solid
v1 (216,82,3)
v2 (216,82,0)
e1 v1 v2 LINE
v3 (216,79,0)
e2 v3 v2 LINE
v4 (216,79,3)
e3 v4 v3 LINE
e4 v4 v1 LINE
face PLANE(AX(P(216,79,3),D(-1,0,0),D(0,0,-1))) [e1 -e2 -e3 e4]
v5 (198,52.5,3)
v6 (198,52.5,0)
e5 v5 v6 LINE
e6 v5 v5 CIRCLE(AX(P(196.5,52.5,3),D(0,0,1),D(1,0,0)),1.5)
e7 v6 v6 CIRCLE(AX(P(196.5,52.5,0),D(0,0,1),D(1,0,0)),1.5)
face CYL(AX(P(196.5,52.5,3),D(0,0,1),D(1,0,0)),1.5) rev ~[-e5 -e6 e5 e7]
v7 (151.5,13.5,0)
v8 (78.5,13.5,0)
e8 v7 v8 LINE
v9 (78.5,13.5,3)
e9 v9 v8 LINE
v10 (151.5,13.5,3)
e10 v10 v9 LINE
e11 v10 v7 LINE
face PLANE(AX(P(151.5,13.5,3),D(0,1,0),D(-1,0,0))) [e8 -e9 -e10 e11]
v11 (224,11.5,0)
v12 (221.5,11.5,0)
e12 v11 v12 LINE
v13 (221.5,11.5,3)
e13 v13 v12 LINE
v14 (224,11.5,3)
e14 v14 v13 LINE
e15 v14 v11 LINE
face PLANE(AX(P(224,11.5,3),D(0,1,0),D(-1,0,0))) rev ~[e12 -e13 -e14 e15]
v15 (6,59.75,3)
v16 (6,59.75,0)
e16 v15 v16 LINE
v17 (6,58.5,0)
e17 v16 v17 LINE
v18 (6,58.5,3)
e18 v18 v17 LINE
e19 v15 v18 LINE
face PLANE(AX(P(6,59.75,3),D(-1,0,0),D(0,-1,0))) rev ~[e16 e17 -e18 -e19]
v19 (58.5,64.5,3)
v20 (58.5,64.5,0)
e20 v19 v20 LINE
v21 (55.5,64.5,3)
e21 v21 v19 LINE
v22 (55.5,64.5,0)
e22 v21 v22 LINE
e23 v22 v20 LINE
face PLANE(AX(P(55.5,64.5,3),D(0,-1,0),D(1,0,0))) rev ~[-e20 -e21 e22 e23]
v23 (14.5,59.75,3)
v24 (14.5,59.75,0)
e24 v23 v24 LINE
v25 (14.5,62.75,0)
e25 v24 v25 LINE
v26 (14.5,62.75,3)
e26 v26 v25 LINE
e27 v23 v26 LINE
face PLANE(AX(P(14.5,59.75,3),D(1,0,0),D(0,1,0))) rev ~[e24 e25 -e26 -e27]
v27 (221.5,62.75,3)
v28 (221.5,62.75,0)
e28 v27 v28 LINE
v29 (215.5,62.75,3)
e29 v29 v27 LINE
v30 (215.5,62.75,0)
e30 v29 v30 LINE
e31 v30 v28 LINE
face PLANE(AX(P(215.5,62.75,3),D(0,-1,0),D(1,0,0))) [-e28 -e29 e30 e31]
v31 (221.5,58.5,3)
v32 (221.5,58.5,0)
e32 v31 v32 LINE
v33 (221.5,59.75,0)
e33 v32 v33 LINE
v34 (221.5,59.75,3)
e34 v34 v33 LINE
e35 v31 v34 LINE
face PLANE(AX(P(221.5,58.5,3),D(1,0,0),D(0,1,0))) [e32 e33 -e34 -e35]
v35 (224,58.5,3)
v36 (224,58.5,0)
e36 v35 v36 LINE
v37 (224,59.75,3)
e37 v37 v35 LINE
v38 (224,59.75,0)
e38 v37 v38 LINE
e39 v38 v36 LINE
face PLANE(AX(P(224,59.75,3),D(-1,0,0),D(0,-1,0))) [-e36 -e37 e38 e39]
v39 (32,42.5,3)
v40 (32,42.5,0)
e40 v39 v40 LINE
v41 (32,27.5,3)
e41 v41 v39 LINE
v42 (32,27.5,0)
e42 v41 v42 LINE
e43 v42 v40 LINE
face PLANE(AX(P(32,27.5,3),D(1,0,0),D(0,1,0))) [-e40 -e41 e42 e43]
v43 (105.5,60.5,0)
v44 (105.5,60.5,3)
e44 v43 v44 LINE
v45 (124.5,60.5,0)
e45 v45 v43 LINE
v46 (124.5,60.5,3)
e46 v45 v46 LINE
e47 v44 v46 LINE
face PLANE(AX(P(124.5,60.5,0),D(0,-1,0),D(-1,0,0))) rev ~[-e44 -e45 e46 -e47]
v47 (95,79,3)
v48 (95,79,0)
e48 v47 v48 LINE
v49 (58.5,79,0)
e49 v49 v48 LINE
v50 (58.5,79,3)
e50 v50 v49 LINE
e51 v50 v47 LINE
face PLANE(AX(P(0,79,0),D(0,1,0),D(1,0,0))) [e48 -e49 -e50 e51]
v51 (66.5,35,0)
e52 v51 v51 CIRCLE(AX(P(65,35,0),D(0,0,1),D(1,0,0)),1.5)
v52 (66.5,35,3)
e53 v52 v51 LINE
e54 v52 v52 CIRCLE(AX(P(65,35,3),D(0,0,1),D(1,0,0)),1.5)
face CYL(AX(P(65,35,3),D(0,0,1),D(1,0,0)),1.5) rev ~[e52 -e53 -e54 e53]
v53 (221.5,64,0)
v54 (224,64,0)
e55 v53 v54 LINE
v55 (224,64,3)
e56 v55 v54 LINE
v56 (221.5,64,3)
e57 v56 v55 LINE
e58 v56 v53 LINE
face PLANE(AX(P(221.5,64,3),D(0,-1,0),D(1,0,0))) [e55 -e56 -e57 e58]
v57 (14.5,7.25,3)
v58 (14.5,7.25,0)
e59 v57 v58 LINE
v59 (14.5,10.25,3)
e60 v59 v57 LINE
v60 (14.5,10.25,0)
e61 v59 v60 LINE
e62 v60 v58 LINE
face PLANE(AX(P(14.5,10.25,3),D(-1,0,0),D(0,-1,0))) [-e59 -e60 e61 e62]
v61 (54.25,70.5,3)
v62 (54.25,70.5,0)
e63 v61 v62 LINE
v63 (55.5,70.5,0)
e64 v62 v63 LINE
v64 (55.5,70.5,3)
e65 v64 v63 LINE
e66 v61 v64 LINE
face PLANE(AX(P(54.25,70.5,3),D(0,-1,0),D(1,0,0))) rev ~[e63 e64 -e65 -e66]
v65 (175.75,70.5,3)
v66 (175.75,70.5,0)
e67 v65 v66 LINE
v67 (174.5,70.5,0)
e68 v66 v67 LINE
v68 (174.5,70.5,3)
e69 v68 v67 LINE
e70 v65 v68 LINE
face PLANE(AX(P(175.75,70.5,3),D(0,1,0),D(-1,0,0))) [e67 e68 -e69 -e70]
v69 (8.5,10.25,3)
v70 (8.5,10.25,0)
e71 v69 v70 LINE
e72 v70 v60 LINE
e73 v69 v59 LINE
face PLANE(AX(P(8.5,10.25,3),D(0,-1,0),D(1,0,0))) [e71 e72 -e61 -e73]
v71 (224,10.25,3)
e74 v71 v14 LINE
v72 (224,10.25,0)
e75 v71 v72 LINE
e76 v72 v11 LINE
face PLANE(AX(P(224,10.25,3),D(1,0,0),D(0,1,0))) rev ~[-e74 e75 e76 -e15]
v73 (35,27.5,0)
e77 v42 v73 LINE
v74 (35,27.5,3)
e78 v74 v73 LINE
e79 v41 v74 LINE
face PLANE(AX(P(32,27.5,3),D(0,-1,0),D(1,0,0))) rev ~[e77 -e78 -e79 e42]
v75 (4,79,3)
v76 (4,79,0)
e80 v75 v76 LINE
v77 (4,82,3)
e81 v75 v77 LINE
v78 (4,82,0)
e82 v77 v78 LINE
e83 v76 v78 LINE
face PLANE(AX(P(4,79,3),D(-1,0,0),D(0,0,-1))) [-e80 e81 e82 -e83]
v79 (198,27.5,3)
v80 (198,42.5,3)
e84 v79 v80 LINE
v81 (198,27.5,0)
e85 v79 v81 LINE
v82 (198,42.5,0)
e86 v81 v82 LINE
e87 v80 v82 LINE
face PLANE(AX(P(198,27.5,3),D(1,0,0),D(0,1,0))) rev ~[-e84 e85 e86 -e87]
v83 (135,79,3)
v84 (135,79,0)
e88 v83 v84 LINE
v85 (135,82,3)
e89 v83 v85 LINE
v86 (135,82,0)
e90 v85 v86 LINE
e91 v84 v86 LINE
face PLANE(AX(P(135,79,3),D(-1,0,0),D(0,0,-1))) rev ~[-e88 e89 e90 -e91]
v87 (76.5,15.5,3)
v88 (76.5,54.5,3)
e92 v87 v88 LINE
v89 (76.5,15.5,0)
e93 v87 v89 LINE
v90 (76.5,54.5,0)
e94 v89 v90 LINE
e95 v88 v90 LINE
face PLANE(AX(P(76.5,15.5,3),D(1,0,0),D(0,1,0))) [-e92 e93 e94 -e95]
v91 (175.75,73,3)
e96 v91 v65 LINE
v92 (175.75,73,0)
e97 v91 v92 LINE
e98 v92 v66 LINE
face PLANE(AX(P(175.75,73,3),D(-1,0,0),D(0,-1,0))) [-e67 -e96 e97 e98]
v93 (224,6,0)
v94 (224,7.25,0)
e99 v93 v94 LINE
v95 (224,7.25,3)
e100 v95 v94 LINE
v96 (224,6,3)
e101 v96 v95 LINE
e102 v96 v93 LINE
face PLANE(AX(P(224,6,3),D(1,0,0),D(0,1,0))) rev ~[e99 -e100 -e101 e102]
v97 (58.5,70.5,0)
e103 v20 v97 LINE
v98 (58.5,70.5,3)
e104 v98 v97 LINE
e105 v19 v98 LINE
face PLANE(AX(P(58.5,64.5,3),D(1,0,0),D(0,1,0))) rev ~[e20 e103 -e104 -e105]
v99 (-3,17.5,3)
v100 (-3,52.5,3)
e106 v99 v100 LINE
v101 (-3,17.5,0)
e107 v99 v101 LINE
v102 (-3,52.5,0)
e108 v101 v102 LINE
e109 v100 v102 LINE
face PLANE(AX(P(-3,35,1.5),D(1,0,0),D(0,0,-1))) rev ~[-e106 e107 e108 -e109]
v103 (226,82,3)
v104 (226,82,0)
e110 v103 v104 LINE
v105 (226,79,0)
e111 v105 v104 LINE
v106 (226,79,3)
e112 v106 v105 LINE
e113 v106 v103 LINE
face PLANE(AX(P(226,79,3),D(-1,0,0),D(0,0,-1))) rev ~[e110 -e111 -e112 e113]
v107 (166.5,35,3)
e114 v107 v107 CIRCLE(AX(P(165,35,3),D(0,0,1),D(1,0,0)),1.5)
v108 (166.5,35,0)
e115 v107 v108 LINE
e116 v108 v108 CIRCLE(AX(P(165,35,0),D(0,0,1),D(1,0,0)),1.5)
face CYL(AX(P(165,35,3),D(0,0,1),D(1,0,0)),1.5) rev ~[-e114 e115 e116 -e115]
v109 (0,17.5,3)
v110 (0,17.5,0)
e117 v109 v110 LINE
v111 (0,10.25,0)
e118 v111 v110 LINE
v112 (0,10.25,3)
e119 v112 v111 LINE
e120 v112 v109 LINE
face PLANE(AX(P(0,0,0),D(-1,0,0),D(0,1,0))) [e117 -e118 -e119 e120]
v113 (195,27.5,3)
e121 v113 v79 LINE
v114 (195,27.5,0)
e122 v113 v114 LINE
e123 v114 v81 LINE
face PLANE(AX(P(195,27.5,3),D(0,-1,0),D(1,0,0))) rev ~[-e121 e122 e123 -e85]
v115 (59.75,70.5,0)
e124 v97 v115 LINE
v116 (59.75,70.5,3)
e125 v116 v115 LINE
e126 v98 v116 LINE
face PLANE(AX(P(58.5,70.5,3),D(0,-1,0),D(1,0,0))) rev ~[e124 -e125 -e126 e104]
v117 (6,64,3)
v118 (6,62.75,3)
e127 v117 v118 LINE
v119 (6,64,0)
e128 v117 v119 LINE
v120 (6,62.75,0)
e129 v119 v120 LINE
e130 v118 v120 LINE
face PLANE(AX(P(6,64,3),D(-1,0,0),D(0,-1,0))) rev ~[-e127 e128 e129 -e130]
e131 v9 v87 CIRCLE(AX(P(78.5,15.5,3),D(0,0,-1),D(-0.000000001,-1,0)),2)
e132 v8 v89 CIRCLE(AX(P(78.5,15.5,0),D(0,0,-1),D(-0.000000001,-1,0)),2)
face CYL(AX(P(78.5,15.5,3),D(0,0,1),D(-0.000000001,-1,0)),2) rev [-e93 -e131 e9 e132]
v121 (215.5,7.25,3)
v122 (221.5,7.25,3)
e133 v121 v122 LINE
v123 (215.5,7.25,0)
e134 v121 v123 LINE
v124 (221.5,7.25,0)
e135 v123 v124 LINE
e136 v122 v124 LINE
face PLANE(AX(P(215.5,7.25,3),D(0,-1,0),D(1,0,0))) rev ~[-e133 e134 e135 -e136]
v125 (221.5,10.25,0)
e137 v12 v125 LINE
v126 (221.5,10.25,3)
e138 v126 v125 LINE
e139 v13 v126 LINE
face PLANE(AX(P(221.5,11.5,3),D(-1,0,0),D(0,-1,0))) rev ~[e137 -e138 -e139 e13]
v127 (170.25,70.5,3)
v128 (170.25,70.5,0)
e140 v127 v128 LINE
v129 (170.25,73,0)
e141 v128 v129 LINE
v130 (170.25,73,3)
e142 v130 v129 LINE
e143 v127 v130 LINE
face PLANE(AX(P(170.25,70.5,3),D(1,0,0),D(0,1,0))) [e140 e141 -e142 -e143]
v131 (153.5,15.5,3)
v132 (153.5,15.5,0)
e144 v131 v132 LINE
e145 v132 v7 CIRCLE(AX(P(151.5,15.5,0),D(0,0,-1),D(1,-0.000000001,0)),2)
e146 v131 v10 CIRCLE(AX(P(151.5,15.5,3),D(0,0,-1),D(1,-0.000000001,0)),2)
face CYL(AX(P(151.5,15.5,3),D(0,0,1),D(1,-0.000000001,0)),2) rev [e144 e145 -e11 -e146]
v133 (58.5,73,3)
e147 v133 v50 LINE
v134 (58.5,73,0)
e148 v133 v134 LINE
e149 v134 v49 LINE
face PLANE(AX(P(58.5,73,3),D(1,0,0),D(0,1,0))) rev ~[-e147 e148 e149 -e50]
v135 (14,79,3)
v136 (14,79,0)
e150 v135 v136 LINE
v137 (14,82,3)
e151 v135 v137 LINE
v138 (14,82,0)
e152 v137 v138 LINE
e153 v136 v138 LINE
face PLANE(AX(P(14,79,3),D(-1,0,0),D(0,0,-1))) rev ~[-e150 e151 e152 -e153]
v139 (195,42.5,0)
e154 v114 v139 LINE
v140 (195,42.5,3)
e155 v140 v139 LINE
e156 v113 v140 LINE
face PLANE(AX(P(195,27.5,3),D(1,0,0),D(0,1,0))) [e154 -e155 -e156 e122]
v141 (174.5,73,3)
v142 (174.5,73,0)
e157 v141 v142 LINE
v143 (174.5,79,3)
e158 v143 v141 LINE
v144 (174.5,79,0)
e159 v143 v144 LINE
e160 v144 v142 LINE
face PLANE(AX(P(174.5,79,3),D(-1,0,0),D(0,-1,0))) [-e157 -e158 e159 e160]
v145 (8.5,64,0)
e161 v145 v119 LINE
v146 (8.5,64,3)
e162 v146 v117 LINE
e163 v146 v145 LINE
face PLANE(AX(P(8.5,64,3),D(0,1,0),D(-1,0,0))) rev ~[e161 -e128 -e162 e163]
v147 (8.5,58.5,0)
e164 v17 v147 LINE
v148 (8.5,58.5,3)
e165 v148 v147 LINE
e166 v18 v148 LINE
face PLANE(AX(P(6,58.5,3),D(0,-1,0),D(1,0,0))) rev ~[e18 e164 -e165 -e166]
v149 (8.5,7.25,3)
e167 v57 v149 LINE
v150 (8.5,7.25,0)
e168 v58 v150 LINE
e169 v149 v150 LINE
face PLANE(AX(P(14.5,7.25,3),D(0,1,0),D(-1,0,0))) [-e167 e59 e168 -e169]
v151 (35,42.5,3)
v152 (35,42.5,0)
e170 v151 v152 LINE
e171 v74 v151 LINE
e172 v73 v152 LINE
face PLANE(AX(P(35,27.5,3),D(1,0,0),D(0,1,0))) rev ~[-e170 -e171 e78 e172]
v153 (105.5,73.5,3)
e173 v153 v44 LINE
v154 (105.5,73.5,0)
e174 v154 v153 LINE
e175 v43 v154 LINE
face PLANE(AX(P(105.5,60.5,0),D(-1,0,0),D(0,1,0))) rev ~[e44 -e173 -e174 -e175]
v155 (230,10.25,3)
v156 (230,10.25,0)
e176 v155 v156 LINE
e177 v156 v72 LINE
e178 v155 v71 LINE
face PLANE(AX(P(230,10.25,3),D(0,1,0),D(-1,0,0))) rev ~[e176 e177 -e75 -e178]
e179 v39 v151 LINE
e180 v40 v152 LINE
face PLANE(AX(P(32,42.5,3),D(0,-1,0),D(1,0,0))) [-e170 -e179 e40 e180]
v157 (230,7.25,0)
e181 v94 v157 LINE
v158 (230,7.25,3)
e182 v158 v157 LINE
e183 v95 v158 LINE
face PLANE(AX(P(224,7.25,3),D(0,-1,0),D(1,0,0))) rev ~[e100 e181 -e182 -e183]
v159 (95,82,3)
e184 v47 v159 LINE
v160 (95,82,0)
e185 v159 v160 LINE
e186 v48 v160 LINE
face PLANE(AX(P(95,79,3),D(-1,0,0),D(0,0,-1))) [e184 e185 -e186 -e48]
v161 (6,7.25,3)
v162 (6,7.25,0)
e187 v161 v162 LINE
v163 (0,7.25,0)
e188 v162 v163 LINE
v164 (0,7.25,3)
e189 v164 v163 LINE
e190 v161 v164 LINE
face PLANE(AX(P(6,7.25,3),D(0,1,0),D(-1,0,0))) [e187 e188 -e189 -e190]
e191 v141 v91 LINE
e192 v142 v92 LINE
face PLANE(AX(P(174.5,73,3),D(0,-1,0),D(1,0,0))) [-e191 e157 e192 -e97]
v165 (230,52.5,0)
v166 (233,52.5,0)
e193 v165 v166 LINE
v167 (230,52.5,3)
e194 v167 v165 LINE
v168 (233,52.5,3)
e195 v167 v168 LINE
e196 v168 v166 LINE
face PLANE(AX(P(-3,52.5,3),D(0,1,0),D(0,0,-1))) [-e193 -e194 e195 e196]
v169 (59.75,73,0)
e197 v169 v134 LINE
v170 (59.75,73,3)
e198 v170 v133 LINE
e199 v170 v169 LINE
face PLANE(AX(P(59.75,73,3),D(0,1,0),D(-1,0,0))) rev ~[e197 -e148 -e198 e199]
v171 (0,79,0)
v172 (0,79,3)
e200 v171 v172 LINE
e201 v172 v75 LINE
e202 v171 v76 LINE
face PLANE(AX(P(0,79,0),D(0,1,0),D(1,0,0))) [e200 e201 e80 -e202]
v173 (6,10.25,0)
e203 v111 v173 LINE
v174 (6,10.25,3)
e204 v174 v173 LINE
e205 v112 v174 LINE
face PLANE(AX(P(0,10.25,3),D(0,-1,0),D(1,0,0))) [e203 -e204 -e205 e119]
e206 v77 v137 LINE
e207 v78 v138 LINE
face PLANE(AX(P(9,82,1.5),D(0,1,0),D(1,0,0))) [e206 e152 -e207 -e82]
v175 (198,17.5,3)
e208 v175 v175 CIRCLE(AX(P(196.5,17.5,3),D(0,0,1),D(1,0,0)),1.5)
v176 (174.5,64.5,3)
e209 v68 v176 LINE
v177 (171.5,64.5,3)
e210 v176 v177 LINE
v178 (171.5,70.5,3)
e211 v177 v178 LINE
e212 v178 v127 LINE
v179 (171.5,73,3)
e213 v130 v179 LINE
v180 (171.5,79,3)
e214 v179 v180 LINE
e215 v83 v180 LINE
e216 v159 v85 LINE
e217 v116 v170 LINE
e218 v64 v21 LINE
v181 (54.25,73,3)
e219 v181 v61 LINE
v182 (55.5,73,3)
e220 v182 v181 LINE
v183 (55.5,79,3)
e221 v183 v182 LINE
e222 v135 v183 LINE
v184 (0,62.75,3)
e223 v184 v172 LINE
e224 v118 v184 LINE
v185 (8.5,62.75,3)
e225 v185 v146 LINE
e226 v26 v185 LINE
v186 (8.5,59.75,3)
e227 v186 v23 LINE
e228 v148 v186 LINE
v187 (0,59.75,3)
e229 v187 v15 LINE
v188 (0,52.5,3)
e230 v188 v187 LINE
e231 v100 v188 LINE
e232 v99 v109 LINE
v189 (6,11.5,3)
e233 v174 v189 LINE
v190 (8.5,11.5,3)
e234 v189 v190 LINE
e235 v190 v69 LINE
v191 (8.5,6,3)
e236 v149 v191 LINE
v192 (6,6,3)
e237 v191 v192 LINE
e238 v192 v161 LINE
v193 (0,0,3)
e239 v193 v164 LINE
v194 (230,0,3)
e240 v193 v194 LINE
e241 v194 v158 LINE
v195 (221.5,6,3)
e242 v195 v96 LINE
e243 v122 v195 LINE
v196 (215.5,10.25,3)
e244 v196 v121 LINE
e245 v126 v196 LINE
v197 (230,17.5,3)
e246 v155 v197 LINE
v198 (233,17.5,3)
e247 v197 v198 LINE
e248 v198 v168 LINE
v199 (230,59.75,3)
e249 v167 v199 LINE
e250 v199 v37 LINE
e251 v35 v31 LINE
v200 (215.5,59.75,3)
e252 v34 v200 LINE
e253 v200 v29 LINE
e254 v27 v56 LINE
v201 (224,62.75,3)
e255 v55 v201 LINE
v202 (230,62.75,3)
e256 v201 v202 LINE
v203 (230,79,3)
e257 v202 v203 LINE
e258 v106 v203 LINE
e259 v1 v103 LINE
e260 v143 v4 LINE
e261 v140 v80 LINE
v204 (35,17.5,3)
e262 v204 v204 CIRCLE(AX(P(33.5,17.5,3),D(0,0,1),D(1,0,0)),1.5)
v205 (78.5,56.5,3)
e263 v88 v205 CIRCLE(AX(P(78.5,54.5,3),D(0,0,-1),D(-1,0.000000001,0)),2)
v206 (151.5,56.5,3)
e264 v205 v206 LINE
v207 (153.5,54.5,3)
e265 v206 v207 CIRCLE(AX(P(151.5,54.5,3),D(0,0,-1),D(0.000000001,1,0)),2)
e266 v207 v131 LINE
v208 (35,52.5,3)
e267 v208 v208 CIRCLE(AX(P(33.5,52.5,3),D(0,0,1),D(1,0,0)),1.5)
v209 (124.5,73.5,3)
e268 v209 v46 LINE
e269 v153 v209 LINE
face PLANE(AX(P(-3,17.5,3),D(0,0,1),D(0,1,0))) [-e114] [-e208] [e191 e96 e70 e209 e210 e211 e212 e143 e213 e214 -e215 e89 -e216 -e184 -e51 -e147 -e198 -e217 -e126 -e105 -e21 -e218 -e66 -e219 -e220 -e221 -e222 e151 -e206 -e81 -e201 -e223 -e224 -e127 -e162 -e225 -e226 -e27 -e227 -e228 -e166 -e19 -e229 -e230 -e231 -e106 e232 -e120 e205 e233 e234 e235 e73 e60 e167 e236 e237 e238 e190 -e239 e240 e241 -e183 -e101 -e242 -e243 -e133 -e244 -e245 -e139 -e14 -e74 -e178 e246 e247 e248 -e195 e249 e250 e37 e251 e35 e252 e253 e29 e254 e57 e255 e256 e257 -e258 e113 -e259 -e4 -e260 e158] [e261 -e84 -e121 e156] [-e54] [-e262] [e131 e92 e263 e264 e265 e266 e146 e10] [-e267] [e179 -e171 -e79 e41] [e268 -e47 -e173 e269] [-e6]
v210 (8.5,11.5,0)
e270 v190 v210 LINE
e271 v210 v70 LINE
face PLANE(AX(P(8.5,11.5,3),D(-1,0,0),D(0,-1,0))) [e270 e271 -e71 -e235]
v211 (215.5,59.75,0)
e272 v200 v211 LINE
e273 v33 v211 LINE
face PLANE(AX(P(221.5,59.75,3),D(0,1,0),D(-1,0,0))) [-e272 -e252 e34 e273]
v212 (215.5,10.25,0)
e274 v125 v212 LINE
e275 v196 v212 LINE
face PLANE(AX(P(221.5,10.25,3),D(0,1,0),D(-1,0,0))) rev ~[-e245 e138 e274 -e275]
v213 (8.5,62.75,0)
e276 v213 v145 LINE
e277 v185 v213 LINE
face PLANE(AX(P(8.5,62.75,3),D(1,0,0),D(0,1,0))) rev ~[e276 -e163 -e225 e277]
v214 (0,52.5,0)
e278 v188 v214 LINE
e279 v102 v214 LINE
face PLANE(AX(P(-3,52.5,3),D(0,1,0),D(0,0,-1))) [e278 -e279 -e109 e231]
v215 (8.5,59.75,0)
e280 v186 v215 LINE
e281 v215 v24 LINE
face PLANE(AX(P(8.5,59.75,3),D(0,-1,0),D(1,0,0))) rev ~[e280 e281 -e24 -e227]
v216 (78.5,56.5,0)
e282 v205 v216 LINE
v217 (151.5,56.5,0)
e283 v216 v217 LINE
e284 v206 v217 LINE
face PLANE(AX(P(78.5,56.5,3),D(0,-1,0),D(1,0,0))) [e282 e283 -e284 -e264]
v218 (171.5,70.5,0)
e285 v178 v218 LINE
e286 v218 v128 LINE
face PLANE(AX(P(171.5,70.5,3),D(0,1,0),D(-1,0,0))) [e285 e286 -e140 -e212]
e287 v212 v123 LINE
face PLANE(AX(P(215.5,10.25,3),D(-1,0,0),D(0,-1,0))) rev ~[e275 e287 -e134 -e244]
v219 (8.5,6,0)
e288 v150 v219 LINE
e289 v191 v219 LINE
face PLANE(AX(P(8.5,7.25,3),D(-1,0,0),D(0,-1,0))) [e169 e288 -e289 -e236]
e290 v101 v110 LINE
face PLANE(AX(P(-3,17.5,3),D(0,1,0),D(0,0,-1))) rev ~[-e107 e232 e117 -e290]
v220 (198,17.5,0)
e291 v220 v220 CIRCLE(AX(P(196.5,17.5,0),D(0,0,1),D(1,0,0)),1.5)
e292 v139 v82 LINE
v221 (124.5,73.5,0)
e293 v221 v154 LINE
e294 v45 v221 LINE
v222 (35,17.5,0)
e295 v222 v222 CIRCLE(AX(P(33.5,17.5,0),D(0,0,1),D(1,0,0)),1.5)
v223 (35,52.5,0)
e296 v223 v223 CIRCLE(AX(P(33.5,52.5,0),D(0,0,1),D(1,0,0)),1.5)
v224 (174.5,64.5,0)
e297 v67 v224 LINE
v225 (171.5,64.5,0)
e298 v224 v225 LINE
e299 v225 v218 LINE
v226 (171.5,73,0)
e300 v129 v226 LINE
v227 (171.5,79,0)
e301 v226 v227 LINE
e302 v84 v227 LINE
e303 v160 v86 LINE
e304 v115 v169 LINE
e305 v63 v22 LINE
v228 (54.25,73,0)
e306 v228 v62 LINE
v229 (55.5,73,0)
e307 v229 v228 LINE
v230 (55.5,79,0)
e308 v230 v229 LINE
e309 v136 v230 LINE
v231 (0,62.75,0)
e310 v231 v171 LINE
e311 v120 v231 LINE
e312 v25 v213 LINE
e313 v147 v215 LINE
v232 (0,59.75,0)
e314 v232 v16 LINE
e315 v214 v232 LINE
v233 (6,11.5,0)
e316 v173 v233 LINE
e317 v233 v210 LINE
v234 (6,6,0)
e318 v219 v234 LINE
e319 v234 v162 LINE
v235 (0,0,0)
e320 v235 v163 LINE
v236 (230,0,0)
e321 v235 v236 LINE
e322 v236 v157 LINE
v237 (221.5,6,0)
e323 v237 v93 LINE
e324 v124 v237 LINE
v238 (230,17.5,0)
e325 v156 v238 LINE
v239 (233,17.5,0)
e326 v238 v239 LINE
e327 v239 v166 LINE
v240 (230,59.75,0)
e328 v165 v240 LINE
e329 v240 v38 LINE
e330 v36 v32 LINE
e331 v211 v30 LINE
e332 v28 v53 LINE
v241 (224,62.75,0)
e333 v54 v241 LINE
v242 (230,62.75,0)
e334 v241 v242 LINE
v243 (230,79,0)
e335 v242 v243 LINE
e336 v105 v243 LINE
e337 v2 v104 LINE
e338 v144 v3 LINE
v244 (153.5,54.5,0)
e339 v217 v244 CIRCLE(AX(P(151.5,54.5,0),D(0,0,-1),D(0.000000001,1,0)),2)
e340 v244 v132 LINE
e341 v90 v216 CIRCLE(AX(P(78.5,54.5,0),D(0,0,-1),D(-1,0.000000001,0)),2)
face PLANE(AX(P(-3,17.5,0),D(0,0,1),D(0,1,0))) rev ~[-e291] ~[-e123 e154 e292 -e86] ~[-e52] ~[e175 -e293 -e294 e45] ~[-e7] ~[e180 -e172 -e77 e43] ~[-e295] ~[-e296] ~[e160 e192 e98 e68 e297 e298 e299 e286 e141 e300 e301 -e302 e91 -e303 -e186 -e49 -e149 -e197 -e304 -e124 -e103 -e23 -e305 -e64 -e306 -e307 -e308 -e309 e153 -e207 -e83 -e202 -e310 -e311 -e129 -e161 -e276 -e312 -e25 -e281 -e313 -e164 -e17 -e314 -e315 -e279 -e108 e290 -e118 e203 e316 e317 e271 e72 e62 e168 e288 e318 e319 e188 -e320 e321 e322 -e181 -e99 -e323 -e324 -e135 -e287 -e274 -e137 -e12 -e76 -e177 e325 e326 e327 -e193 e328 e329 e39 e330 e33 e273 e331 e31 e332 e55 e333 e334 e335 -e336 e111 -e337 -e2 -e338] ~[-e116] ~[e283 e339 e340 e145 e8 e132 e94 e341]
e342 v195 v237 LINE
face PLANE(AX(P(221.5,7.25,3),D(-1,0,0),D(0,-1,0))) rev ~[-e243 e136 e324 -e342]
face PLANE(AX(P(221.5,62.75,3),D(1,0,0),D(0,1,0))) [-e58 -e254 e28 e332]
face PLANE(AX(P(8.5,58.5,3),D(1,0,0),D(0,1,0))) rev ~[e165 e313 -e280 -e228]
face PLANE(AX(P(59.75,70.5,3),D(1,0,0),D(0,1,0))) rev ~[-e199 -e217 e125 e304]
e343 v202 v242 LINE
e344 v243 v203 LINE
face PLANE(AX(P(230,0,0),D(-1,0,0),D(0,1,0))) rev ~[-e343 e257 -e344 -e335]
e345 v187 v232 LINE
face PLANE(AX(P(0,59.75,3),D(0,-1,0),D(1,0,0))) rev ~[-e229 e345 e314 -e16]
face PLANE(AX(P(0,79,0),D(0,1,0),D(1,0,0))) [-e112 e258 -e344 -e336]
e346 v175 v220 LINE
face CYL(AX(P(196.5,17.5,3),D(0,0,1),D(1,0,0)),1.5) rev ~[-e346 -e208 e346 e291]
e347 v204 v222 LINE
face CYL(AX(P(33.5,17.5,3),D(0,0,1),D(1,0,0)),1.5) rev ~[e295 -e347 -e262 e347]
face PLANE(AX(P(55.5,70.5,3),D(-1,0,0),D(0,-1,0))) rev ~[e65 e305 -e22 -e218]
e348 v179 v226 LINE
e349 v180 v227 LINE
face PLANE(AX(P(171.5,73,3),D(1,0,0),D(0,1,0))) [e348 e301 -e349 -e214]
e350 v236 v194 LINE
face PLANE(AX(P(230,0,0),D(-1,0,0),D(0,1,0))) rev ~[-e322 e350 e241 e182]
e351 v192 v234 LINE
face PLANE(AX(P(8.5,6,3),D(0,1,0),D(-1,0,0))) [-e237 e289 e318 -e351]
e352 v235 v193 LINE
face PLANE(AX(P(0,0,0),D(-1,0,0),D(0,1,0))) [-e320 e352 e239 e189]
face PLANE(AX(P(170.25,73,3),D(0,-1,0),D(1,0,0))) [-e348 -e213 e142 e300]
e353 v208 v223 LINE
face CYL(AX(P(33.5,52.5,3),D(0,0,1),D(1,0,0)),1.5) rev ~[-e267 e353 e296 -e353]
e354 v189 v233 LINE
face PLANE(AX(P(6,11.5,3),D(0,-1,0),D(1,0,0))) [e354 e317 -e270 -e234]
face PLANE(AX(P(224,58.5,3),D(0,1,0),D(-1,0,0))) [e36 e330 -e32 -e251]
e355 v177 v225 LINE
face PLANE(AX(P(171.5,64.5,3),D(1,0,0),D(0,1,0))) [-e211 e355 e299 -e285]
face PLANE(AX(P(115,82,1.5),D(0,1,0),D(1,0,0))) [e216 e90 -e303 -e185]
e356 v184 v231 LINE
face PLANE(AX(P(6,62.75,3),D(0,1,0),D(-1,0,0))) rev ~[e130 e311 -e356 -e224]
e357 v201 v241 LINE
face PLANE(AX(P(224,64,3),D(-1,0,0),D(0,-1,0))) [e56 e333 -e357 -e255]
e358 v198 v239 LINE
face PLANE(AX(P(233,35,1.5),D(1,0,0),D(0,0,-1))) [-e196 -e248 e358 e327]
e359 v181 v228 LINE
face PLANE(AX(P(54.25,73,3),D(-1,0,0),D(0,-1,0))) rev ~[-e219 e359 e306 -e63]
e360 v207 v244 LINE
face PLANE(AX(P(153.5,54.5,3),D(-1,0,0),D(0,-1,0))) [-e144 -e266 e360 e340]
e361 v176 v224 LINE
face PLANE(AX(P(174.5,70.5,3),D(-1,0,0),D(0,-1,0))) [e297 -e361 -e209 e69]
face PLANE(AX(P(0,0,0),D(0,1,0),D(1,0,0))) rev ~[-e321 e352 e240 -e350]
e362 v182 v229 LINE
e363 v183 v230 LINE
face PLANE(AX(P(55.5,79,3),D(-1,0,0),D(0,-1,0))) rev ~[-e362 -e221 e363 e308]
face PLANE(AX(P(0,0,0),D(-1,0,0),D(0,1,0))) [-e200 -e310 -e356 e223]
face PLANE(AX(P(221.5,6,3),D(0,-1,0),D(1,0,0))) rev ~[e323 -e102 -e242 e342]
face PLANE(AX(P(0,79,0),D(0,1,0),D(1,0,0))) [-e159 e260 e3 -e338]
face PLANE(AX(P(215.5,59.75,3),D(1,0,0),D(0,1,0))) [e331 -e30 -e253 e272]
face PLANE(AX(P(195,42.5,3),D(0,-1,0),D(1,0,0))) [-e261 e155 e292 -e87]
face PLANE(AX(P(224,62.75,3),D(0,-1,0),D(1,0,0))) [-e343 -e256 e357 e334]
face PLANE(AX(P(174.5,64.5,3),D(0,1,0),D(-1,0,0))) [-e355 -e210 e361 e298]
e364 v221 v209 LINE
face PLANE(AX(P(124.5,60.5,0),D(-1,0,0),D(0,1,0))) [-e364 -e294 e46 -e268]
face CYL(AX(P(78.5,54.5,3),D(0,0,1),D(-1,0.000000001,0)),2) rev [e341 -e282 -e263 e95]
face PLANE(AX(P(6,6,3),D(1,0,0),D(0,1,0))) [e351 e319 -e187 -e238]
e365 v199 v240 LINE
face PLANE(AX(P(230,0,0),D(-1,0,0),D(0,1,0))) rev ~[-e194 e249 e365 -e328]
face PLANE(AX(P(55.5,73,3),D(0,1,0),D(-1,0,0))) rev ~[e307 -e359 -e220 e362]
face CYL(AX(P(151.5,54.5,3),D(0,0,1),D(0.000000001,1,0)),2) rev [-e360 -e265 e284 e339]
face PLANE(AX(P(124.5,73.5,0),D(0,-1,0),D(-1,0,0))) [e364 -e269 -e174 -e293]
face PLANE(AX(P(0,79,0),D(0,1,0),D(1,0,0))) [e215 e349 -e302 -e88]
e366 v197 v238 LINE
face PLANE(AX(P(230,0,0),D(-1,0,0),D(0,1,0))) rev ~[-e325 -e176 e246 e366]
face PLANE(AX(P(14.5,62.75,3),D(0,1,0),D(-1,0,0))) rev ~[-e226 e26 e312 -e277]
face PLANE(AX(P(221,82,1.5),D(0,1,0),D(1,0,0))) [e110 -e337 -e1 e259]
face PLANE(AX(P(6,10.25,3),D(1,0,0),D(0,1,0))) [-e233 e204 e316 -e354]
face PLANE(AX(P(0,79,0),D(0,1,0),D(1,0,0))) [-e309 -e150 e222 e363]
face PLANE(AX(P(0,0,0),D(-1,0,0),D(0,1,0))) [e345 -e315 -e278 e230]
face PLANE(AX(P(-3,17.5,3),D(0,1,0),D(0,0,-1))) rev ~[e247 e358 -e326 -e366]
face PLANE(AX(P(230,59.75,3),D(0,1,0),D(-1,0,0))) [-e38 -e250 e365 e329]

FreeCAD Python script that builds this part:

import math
import FreeCAD as App
import Part
import Sketcher
from FreeCAD import Vector


def add_polygon(sketch, points):
    """Adds a closed chain of lines whose ends are joined by coincident constraints."""
    first, n = sketch.GeometryCount, len(points)
    for a, b in zip(points, points[1:] + points[:1]):
        sketch.addGeometry(Part.LineSegment(App.Vector(*a, 0), App.Vector(*b, 0)), False)
    for i in range(n):
        sketch.addConstraint(Sketcher.Constraint("Coincident", first + i, 2, first + (i + 1) % n, 1))

doc = App.newDocument("Part")
params = doc.addObject("Spreadsheet::Sheet", "Params")
for row, (alias, value) in enumerate([
    ("sketch1_width", "230 mm"),
    ("sketch1_height", "79 mm"),
    ("pad1_length", "3 mm"),
    ("sketch2_width", "35 mm"),
    ("sketch2_height", "3 mm"),
    ("pad2_length", "3 mm"),
    ("pad2_length2", "233 mm"),
    ("sketch3_diameter", "3 mm"),
    ("pocket1_length", "3 mm"),
    ("sketch4_diameter", "3 mm"),
    ("pocket2_length", "3 mm"),
    ("sketch5_width", "3 mm"),
    ("sketch5_height", "15 mm"),
    ("pocket3_length", "3 mm"),
    ("sketch6_width", "6 mm"),
    ("sketch6_height", "3 mm"),
    ("sketch6_width2", "2.5 mm"),
    ("pocket4_length", "3 mm"),
    ("sketch7_width", "10 mm"),
    ("sketch7_height", "3 mm"),
    ("pad3_length", "3 mm"),
    ("sketch8_width", "40 mm"),
    ("sketch8_height", "3 mm"),
    ("pad4_length", "3 mm"),
    ("sketch9_width", "3 mm"),
    ("sketch9_height", "6 mm"),
    ("sketch9_height2", "2.5 mm"),
    ("sketch9_width2", "1.25 mm"),
    ("pocket5_length", "3 mm"),
    ("sketch10_radius", "2 mm"),
    ("sketch10_width", "73 mm"),
    ("sketch10_height", "39 mm"),
    ("pocket6_length", "3 mm"),
    ("sketch11_width", "19 mm"),
    ("sketch11_height", "13 mm"),
    ("pocket7_length", "10 mm"),
], start=1):
    params.set(f"A{row}", alias)
    params.set(f"B{row}", "=" + value)
    params.setAlias(f"B{row}", alias)

body = doc.addObject("PartDesign::Body", "Body")

# Sketch on XY plane
sketch1 = body.newObject("Sketcher::SketchObject", "Sketch")
sketch1.AttachmentSupport = (doc.getObject("XY_Plane"), [""])
sketch1.MapMode = "FlatFace"
add_polygon(sketch1, [(0, 79), (0, 0), (230, 0), (230, 79)])  # lines 0-3
sketch1.addConstraint([
    Sketcher.Constraint("Vertical", 0),
    Sketcher.Constraint("Horizontal", 1),
    Sketcher.Constraint("Vertical", 2),
    Sketcher.Constraint("Horizontal", 3),
    Sketcher.Constraint("Coincident", 0, 2, -1, 1),
    Sketcher.Constraint("DistanceX", 1, 1, 1, 2, 230.0),
    Sketcher.Constraint("DistanceY", 0, 2, 0, 1, 79.0),
])
sketch1.setExpression("Constraints[9]", "Params.sketch1_width")
sketch1.setExpression("Constraints[10]", "Params.sketch1_height")
pad1 = body.newObject("PartDesign::Pad", "Pad")
pad1.Profile = sketch1
pad1.setExpression("Length", "Params.pad1_length")

# Sketch on YZ plane
sketch2 = body.newObject("Sketcher::SketchObject", "Sketch001")
sketch2.AttachmentSupport = (doc.getObject("YZ_Plane"), [""])
sketch2.MapMode = "FlatFace"
sketch2.AttachmentOffset = App.Placement(Vector(0, 0, 230), App.Rotation())
add_polygon(sketch2, [(52.5, 3), (17.5, 3), (17.5, 0), (52.5, 0)])  # lines 0-3
sketch2.addConstraint([
    Sketcher.Constraint("Horizontal", 0),
    Sketcher.Constraint("Vertical", 1),
    Sketcher.Constraint("Horizontal", 2),
    Sketcher.Constraint("Vertical", 3),
    Sketcher.Constraint("PointOnObject", 1, 2, -1),
    Sketcher.Constraint("DistanceX", 0, 2, 0, 1, 35.0),
    Sketcher.Constraint("DistanceY", 1, 2, 1, 1, 3.0),
    Sketcher.Constraint("DistanceX", -1, 1, 0, 2, 17.5),
])
sketch2.setExpression("Constraints[9]", "Params.sketch2_width")
sketch2.setExpression("Constraints[10]", "Params.sketch2_height")
pad2 = body.newObject("PartDesign::Pad", "Pad001")
pad2.Profile = sketch2
pad2.Type = "TwoLengths"
pad2.setExpression("Length", "Params.pad2_length")
pad2.setExpression("Length2", "Params.pad2_length2")

# Sketch on XY plane
sketch3 = body.newObject("Sketcher::SketchObject", "Sketch002")
sketch3.AttachmentSupport = (doc.getObject("XY_Plane"), [""])
sketch3.MapMode = "FlatFace"
sketch3.AttachmentOffset = App.Placement(Vector(0, 0, 3), App.Rotation())
sketch3.addGeometry([
    Part.Circle(Vector(65, 35, 0), Vector(0, 0, 1), 1.5),
    Part.Circle(Vector(165, 35, 0), Vector(0, 0, 1), 1.5),
], False)
sketch3.addConstraint([
    Sketcher.Constraint("Equal", 0, 1),
    Sketcher.Constraint("Horizontal", 0, 3, 1, 3),
    Sketcher.Constraint("Diameter", 0, 3.0),
    Sketcher.Constraint("DistanceX", -1, 1, 0, 3, 65.0),
    Sketcher.Constraint("DistanceY", -1, 1, 0, 3, 35.0),
    Sketcher.Constraint("DistanceX", -1, 1, 1, 3, 165.0),
])
sketch3.setExpression("Constraints[2]", "Params.sketch3_diameter")
pocket1 = body.newObject("PartDesign::Pocket", "Pocket")
pocket1.Profile = sketch3
pocket1.setExpression("Length", "Params.pocket1_length")

# Sketch on XY plane
sketch4 = body.newObject("Sketcher::SketchObject", "Sketch003")
sketch4.AttachmentSupport = (doc.getObject("XY_Plane"), [""])
sketch4.MapMode = "FlatFace"
sketch4.AttachmentOffset = App.Placement(Vector(0, 0, 3), App.Rotation())
sketch4.addGeometry([
    Part.Circle(Vector(33.5, 52.5, 0), Vector(0, 0, 1), 1.5),
    Part.Circle(Vector(196.5, 52.5, 0), Vector(0, 0, 1), 1.5),
    Part.Circle(Vector(196.5, 17.5, 0), Vector(0, 0, 1), 1.5),
    Part.Circle(Vector(33.5, 17.5, 0), Vector(0, 0, 1), 1.5),
], False)
sketch4.addConstraint([
    Sketcher.Constraint("Equal", 0, 1),
    Sketcher.Constraint("Equal", 1, 2),
    Sketcher.Constraint("Equal", 2, 3),
    Sketcher.Constraint("Horizontal", 0, 3, 1, 3),
    Sketcher.Constraint("Horizontal", 2, 3, 3, 3),
    Sketcher.Constraint("Vertical", 1, 3, 2, 3),
    Sketcher.Constraint("Vertical", 0, 3, 3, 3),
    Sketcher.Constraint("Diameter", 0, 3.0),
    Sketcher.Constraint("DistanceX", 0, 3, 1, 3, 163.0),
    Sketcher.Constraint("DistanceY", 2, 3, 1, 3, 35.0),
    Sketcher.Constraint("DistanceX", -1, 1, 0, 3, 33.5),
    Sketcher.Constraint("DistanceY", -1, 1, 0, 3, 52.5),
])
sketch4.setExpression("Constraints[7]", "Params.sketch4_diameter")
pocket2 = body.newObject("PartDesign::Pocket", "Pocket001")
pocket2.Profile = sketch4
pocket2.setExpression("Length", "Params.pocket2_length")

# Sketch on XY plane
sketch5 = body.newObject("Sketcher::SketchObject", "Sketch004")
sketch5.AttachmentSupport = (doc.getObject("XY_Plane"), [""])
sketch5.MapMode = "FlatFace"
sketch5.AttachmentOffset = App.Placement(Vector(0, 0, 3), App.Rotation())
add_polygon(sketch5, [(32, 42.5), (32, 27.5), (35, 27.5), (35, 42.5)])  # lines 0-3
add_polygon(sketch5, [(195, 42.5), (195, 27.5), (198, 27.5), (198, 42.5)])  # lines 4-7
sketch5.addConstraint([
    Sketcher.Constraint("Vertical", 0),
    Sketcher.Constraint("Horizontal", 1),
    Sketcher.Constraint("Vertical", 2),
    Sketcher.Constraint("Horizontal", 3),
    Sketcher.Constraint("Vertical", 4),
    Sketcher.Constraint("Horizontal", 5),
    Sketcher.Constraint("Vertical", 6),
    Sketcher.Constraint("Horizontal", 7),
    Sketcher.Constraint("Horizontal", 1, 2, 4, 2),
    Sketcher.Constraint("Horizontal", 3, 2, 6, 2),
    Sketcher.Constraint("Equal", 3, 5),
    Sketcher.Constraint("DistanceX", 1, 1, 1, 2, 3.0),
    Sketcher.Constraint("DistanceY", 0, 2, 0, 1, 15.0),
    Sketcher.Constraint("DistanceX", -1, 1, 0, 2, 32.0),
    Sketcher.Constraint("DistanceX", -1, 1, 4, 2, 195.0),
    Sketcher.Constraint("DistanceY", -1, 1, 0, 2, 27.5),
])
sketch5.setExpression("Constraints[19]", "Params.sketch5_width")
sketch5.setExpression("Constraints[20]", "Params.sketch5_height")
pocket3 = body.newObject("PartDesign::Pocket", "Pocket002")
pocket3.Profile = sketch5
pocket3.setExpression("Length", "Params.pocket3_length")

# Sketch on XY plane
sketch6 = body.newObject("Sketcher::SketchObject", "Sketch005")
sketch6.AttachmentSupport = (doc.getObject("XY_Plane"), [""])
sketch6.MapMode = "FlatFace"
sketch6.AttachmentOffset = App.Placement(Vector(0, 0, 3), App.Rotation())
add_polygon(sketch6, [(6, 10.2), (0, 10.2), (0, 7.2), (6, 7.2), (6, 6), (8.5, 6), (8.5, 7.2), (14.5, 7.2), (14.5, 10.2), (8.5, 10.2), (8.5, 11.5), (6, 11.5)])  # lines 0-11
add_polygon(sketch6, [(230, 7.2), (230, 10.2), (224, 10.2), (224, 11.5), (221.5, 11.5), (221.5, 10.2), (215.5, 10.2), (215.5, 7.2), (221.5, 7.2), (221.5, 6), (224, 6), (224, 7.2)])  # lines 12-23
add_polygon(sketch6, [(224, 59.8), (230, 59.8), (230, 62.8), (224, 62.8), (224, 64), (221.5, 64), (221.5, 62.8), (215.5, 62.8), (215.5, 59.8), (221.5, 59.8), (221.5, 58.5), (224, 58.5)])  # lines 24-35
add_polygon(sketch6, [(0, 62.8), (0, 59.8), (6, 59.8), (6, 58.5), (8.5, 58.5), (8.5, 59.8), (14.5, 59.8), (14.5, 62.8), (8.5, 62.8), (8.5, 64), (6, 64), (6, 62.8)])  # lines 36-47
sketch6.addConstraint([
    Sketcher.Constraint("Horizontal", 0),
    Sketcher.Constraint("Vertical", 1),
    Sketcher.Constraint("Horizontal", 2),
    Sketcher.Constraint("Vertical", 3),
    Sketcher.Constraint("Horizontal", 4),
    Sketcher.Constraint("Vertical", 5),
    Sketcher.Constraint("Horizontal", 6),
    Sketcher.Constraint("Vertical", 7),
    Sketcher.Constraint("Horizontal", 8),
    Sketcher.Constraint("Vertical", 9),
    Sketcher.Constraint("Horizontal", 10),
    Sketcher.Constraint("Vertical", 11),
    Sketcher.Constraint("Vertical", 12),
    Sketcher.Constraint("Horizontal", 13),
    Sketcher.Constraint("Vertical", 14),
    Sketcher.Constraint("Horizontal", 15),
    Sketcher.Constraint("Vertical", 16),
    Sketcher.Constraint("Horizontal", 17),
    Sketcher.Constraint("Vertical", 18),
    Sketcher.Constraint("Horizontal", 19),
    Sketcher.Constraint("Vertical", 20),
    Sketcher.Constraint("Horizontal", 21),
    Sketcher.Constraint("Vertical", 22),
    Sketcher.Constraint("Horizontal", 23),
    Sketcher.Constraint("Horizontal", 24),
    Sketcher.Constraint("Vertical", 25),
    Sketcher.Constraint("Horizontal", 26),
    Sketcher.Constraint("Vertical", 27),
    Sketcher.Constraint("Horizontal", 28),
    Sketcher.Constraint("Vertical", 29),
    Sketcher.Constraint("Horizontal", 30),
    Sketcher.Constraint("Vertical", 31),
    Sketcher.Constraint("Horizontal", 32),
    Sketcher.Constraint("Vertical", 33),
    Sketcher.Constraint("Horizontal", 34),
    Sketcher.Constraint("Vertical", 35),
    Sketcher.Constraint("Vertical", 36),
    Sketcher.Constraint("Horizontal", 37),
    Sketcher.Constraint("Vertical", 38),
    Sketcher.Constraint("Horizontal", 39),
    Sketcher.Constraint("Vertical", 40),
    Sketcher.Constraint("Horizontal", 41),
    Sketcher.Constraint("Vertical", 42),
    Sketcher.Constraint("Horizontal", 43),
    Sketcher.Constraint("Vertical", 44),
    Sketcher.Constraint("Horizontal", 45),
    Sketcher.Constraint("Vertical", 46),
    Sketcher.Constraint("Horizontal", 47),
    Sketcher.Constraint("PointOnObject", 0, 2, -2),
    Sketcher.Constraint("PointOnObject", 36, 2, -2),
    Sketcher.Constraint("Horizontal", 2, 2, 5, 2),
    Sketcher.Constraint("Horizontal", 0, 2, 7, 2),
    Sketcher.Constraint("Horizontal", 11, 2, 12, 2),
    Sketcher.Constraint("Horizontal", 10, 2, 14, 2),
    Sketcher.Constraint("Horizontal", 13, 2, 16, 2),
    Sketcher.Constraint("Horizontal", 6, 2, 18, 2),
    Sketcher.Constraint("Horizontal", 4, 2, 20, 2),
    Sketcher.Constraint("Horizontal", 19, 2, 22, 2),
    Sketcher.Constraint("Horizontal", 26, 2, 29, 2),
    Sketcher.Constraint("Horizontal", 24, 2, 31, 2),
    Sketcher.Constraint("Horizontal", 35, 2, 36, 2),
    Sketcher.Constraint("Horizontal", 34, 2, 38, 2),
    Sketcher.Constraint("Horizontal", 37, 2, 40, 2),
    Sketcher.Constraint("Horizontal", 30, 2, 42, 2),
    Sketcher.Constraint("Horizontal", 28, 2, 44, 2),
    Sketcher.Constraint("Horizontal", 43, 2, 46, 2),
    Sketcher.Constraint("Vertical", 5, 2, 8, 2),
    Sketcher.Constraint("Vertical", 3, 2, 10, 2),
    Sketcher.Constraint("Vertical", 16, 2, 19, 2),
    Sketcher.Constraint("Vertical", 14, 2, 21, 2),
    Sketcher.Constraint("Vertical", 23, 2, 24, 2),
    Sketcher.Constraint("Vertical", 22, 2, 26, 2),
    Sketcher.Constraint("Vertical", 20, 2, 28, 2),
    Sketcher.Constraint("Vertical", 18, 2, 30, 2),
    Sketcher.Constraint("Vertical", 29, 2, 32, 2),
    Sketcher.Constraint("Vertical", 27, 2, 34, 2),
    Sketcher.Constraint("Vertical", 11, 2, 37, 2),
    Sketcher.Constraint("Vertical", 9, 2, 39, 2),
    Sketcher.Constraint("Vertical", 7, 2, 41, 2),
    Sketcher.Constraint("Vertical", 40, 2, 43, 2),
    Sketcher.Constraint("Vertical", 38, 2, 45, 2),
    Sketcher.Constraint("Equal", 2, 6),
    Sketcher.Constraint("Equal", 8, 13),
    Sketcher.Constraint("Equal", 10, 15),
    Sketcher.Constraint("Equal", 13, 17),
    Sketcher.Constraint("Equal", 5, 9),
    Sketcher.Constraint("Equal", 18, 25),
    Sketcher.Constraint("Equal", 22, 27),
    Sketcher.Constraint("Equal", 29, 33),
    Sketcher.Constraint("DistanceX", 0, 2, 0, 1, 6.0),
    Sketcher.Constraint("DistanceY", 1, 2, 1, 1, 3.0),
    Sketcher.Constraint("DistanceX", 4, 1, 4, 2, 2.5),
    Sketcher.Constraint("DistanceY", -1, 1, 3, 2, 6.0),
    Sketcher.Constraint("DistanceX", -1, 1, 12, 2, 230.0),
    Sketcher.Constraint("DistanceY", -1, 1, 27, 2, 64.0),
    Sketcher.Constraint("DistanceY", 10, 2, 38, 2, 47.0),
])
sketch6.setExpression("Constraints[137]", "Params.sketch6_width")
sketch6.setExpression("Constraints[138]", "Params.sketch6_height")
sketch6.setExpression("Constraints[139]", "Params.sketch6_width2")
pocket4 = body.newObject("PartDesign::Pocket", "Pocket003")
pocket4.Profile = sketch6
pocket4.setExpression("Length", "Params.pocket4_length")

# Sketch on XZ plane
sketch7 = body.newObject("Sketcher::SketchObject", "Sketch006")
sketch7.AttachmentSupport = (doc.getObject("XZ_Plane"), [""])
sketch7.MapMode = "FlatFace"
sketch7.AttachmentOffset = App.Placement(Vector(0, 0, -79), App.Rotation())
add_polygon(sketch7, [(216, 0), (216, 3), (226, 3), (226, 0)])  # lines 0-3
add_polygon(sketch7, [(4, 0), (4, 3), (14, 3), (14, 0)])  # lines 4-7
sketch7.addConstraint([
    Sketcher.Constraint("Vertical", 0),
    Sketcher.Constraint("Horizontal", 1),
    Sketcher.Constraint("Vertical", 2),
    Sketcher.Constraint("Horizontal", 3),
    Sketcher.Constraint("Vertical", 4),
    Sketcher.Constraint("Horizontal", 5),
    Sketcher.Constraint("Vertical", 6),
    Sketcher.Constraint("Horizontal", 7),
    Sketcher.Constraint("PointOnObject", 2, 2, -1),
    Sketcher.Constraint("PointOnObject", 6, 2, -1),
    Sketcher.Constraint("Horizontal", 1, 2, 4, 2),
    Sketcher.Constraint("Equal", 3, 5),
    Sketcher.Constraint("DistanceX", 1, 1, 1, 2, 10.0),
    Sketcher.Constraint("DistanceY", 0, 1, 0, 2, 3.0),
    Sketcher.Constraint("DistanceX", -1, 1, 0, 2, 216.0),
    Sketcher.Constraint("DistanceX", -1, 1, 4, 2, 4.0),
])
sketch7.setExpression("Constraints[20]", "Params.sketch7_width")
sketch7.setExpression("Constraints[21]", "Params.sketch7_height")
pad3 = body.newObject("PartDesign::Pad", "Pad002")
pad3.Profile = sketch7
pad3.setExpression("Length", "Params.pad3_length")
pad3.Reversed = True

# Sketch on XZ plane
sketch8 = body.newObject("Sketcher::SketchObject", "Sketch007")
sketch8.AttachmentSupport = (doc.getObject("XZ_Plane"), [""])
sketch8.MapMode = "FlatFace"
sketch8.AttachmentOffset = App.Placement(Vector(0, 0, -79), App.Rotation())
add_polygon(sketch8, [(95, 0), (95, 3), (135, 3), (135, 0)])  # lines 0-3
sketch8.addConstraint([
    Sketcher.Constraint("Vertical", 0),
    Sketcher.Constraint("Horizontal", 1),
    Sketcher.Constraint("Vertical", 2),
    Sketcher.Constraint("Horizontal", 3),
    Sketcher.Constraint("PointOnObject", 2, 2, -1),
    Sketcher.Constraint("DistanceX", 1, 1, 1, 2, 40.0),
    Sketcher.Constraint("DistanceY", 0, 1, 0, 2, 3.0),
    Sketcher.Constraint("DistanceX", -1, 1, 0, 2, 95.0),
])
sketch8.setExpression("Constraints[9]", "Params.sketch8_width")
sketch8.setExpression("Constraints[10]", "Params.sketch8_height")
pad4 = body.newObject("PartDesign::Pad", "Pad003")
pad4.Profile = sketch8
pad4.setExpression("Length", "Params.pad4_length")
pad4.Reversed = True

# Sketch on XY plane
sketch9 = body.newObject("Sketcher::SketchObject", "Sketch008")
sketch9.AttachmentSupport = (doc.getObject("XY_Plane"), [""])
sketch9.MapMode = "FlatFace"
sketch9.AttachmentOffset = App.Placement(Vector(0, 0, 3), App.Rotation())
add_polygon(sketch9, [(55.5, 79), (55.5, 73), (54.2, 73), (54.2, 70.5), (55.5, 70.5), (55.5, 64.5), (58.5, 64.5), (58.5, 70.5), (59.8, 70.5), (59.8, 73), (58.5, 73), (58.5, 79)])  # lines 0-11
add_polygon(sketch9, [(174.5, 79), (171.5, 79), (171.5, 73), (170.2, 73), (170.2, 70.5), (171.5, 70.5), (171.5, 64.5), (174.5, 64.5), (174.5, 70.5), (175.8, 70.5), (175.8, 73), (174.5, 73)])  # lines 12-23
sketch9.addConstraint([
    Sketcher.Constraint("Vertical", 0),
    Sketcher.Constraint("Horizontal", 1),
    Sketcher.Constraint("Vertical", 2),
    Sketcher.Constraint("Horizontal", 3),
    Sketcher.Constraint("Vertical", 4),
    Sketcher.Constraint("Horizontal", 5),
    Sketcher.Constraint("Vertical", 6),
    Sketcher.Constraint("Horizontal", 7),
    Sketcher.Constraint("Vertical", 8),
    Sketcher.Constraint("Horizontal", 9),
    Sketcher.Constraint("Vertical", 10),
    Sketcher.Constraint("Horizontal", 11),
    Sketcher.Constraint("Horizontal", 12),
    Sketcher.Constraint("Vertical", 13),
    Sketcher.Constraint("Horizontal", 14),
    Sketcher.Constraint("Vertical", 15),
    Sketcher.Constraint("Horizontal", 16),
    Sketcher.Constraint("Vertical", 17),
    Sketcher.Constraint("Horizontal", 18),
    Sketcher.Constraint("Vertical", 19),
    Sketcher.Constraint("Horizontal", 20),
    Sketcher.Constraint("Vertical", 21),
    Sketcher.Constraint("Horizontal", 22),
    Sketcher.Constraint("Vertical", 23),
    Sketcher.Constraint("Horizontal", 3, 2, 6, 2),
    Sketcher.Constraint("Horizontal", 1, 2, 8, 2),
    Sketcher.Constraint("Horizontal", 11, 2, 12, 2),
    Sketcher.Constraint("Horizontal", 9, 2, 13, 2),
    Sketcher.Constraint("Horizontal", 7, 2, 15, 2),
    Sketcher.Constraint("Horizontal", 5, 2, 17, 2),
    Sketcher.Constraint("Horizontal", 16, 2, 19, 2),
    Sketcher.Constraint("Horizontal", 14, 2, 21, 2),
    Sketcher.Constraint("Vertical", 0, 2, 3, 2),
    Sketcher.Constraint("Vertical", 6, 2, 9, 2),
    Sketcher.Constraint("Vertical", 13, 2, 16, 2),
    Sketcher.Constraint("Vertical", 19, 2, 22, 2),
    Sketcher.Constraint("Equal", 3, 7),
    Sketcher.Constraint("Equal", 11, 12),
    Sketcher.Constraint("Equal", 9, 14),
    Sketcher.Constraint("Equal", 16, 20),
    Sketcher.Constraint("Equal", 0, 4),
    Sketcher.Constraint("DistanceX", 5, 1, 5, 2, 3.0),
    Sketcher.Constraint("DistanceY", 0, 2, 0, 1, 6.0),
    Sketcher.Constraint("DistanceY", 2, 2, 2, 1, 2.5),
    Sketcher.Constraint("DistanceY", -1, 1, 0, 2, 73.0),
    Sketcher.Constraint("DistanceX", 10, 2, 12, 2, 113.0),
    Sketcher.Constraint("DistanceX", 1, 2, 1, 1, 1.25),
    Sketcher.Constraint("DistanceX", -1, 1, 0, 2, 55.5),
])
sketch9.setExpression("Constraints[65]", "Params.sketch9_width")
sketch9.setExpression("Constraints[66]", "Params.sketch9_height")
sketch9.setExpression("Constraints[67]", "Params.sketch9_height2")
sketch9.setExpression("Constraints[70]", "Params.sketch9_width2")
pocket5 = body.newObject("PartDesign::Pocket", "Pocket004")
pocket5.Profile = sketch9
pocket5.setExpression("Length", "Params.pocket5_length")

# Sketch on XY plane
sketch10 = body.newObject("Sketcher::SketchObject", "Sketch009")
sketch10.AttachmentSupport = (doc.getObject("XY_Plane"), [""])
sketch10.MapMode = "FlatFace"
sketch10.AttachmentOffset = App.Placement(Vector(0, 0, 3), App.Rotation())
sketch10.addGeometry([
    Part.LineSegment(Vector(151.5, 56.5, 0), Vector(78.5, 56.5, 0)),  # 0
    Part.ArcOfCircle(Part.Circle(Vector(78.5, 54.5, 0), Vector(0, 0, 1), 2), math.radians(90), math.radians(180)),  # 1
    Part.LineSegment(Vector(76.5, 54.5, 0), Vector(76.5, 15.5, 0)),  # 2
    Part.ArcOfCircle(Part.Circle(Vector(78.5, 15.5, 0), Vector(0, 0, 1), 2), math.radians(-180), math.radians(-90)),  # 3
    Part.LineSegment(Vector(78.5, 13.5, 0), Vector(151.5, 13.5, 0)),  # 4
    Part.ArcOfCircle(Part.Circle(Vector(151.5, 15.5, 0), Vector(0, 0, 1), 2), math.radians(-90), math.radians(0)),  # 5
    Part.LineSegment(Vector(153.5, 15.5, 0), Vector(153.5, 54.5, 0)),  # 6
    Part.ArcOfCircle(Part.Circle(Vector(151.5, 54.5, 0), Vector(0, 0, 1), 2), math.radians(0), math.radians(90)),  # 7
], False)
sketch10.addConstraint([
    Sketcher.Constraint("Tangent", 0, 2, 1, 1),
    Sketcher.Constraint("Tangent", 1, 2, 2, 1),
    Sketcher.Constraint("Tangent", 2, 2, 3, 1),
    Sketcher.Constraint("Tangent", 3, 2, 4, 1),
    Sketcher.Constraint("Tangent", 4, 2, 5, 1),
    Sketcher.Constraint("Tangent", 5, 2, 6, 1),
    Sketcher.Constraint("Tangent", 6, 2, 7, 1),
    Sketcher.Constraint("Tangent", 7, 2, 0, 1),
    Sketcher.Constraint("Horizontal", 0),
    Sketcher.Constraint("Vertical", 2),
    Sketcher.Constraint("Horizontal", 4),
    Sketcher.Constraint("Vertical", 6),
    Sketcher.Constraint("Equal", 1, 3),
    Sketcher.Constraint("Equal", 3, 5),
    Sketcher.Constraint("Equal", 5, 7),
    Sketcher.Constraint("Radius", 1, 2.0),
    Sketcher.Constraint("DistanceX", 0, 2, 0, 1, 73.0),
    Sketcher.Constraint("DistanceY", 2, 2, 2, 1, 39.0),
    Sketcher.Constraint("DistanceX", -1, 1, 1, 3, 78.5),
    Sketcher.Constraint("DistanceY", -1, 1, 1, 3, 54.5),
])
sketch10.setExpression("Constraints[15]", "Params.sketch10_radius")
sketch10.setExpression("Constraints[16]", "Params.sketch10_width")
sketch10.setExpression("Constraints[17]", "Params.sketch10_height")
pocket6 = body.newObject("PartDesign::Pocket", "Pocket005")
pocket6.Profile = sketch10
pocket6.setExpression("Length", "Params.pocket6_length")

# Sketch on XY plane
sketch11 = body.newObject("Sketcher::SketchObject", "Sketch010")
sketch11.AttachmentSupport = (doc.getObject("XY_Plane"), [""])
sketch11.MapMode = "FlatFace"
add_polygon(sketch11, [(124, 74), (124, 60), (106, 60), (106, 74)])  # lines 0-3
sketch11.addConstraint([
    Sketcher.Constraint("Vertical", 0),
    Sketcher.Constraint("Horizontal", 1),
    Sketcher.Constraint("Vertical", 2),
    Sketcher.Constraint("Horizontal", 3),
    Sketcher.Constraint("DistanceX", 1, 2, 1, 1, 19.0),
    Sketcher.Constraint("DistanceY", 0, 2, 0, 1, 13.0),
    Sketcher.Constraint("DistanceX", -1, 1, 0, 2, 124.5),
    Sketcher.Constraint("DistanceY", -1, 1, 0, 2, 60.5),
])
sketch11.setExpression("Constraints[8]", "Params.sketch11_width")
sketch11.setExpression("Constraints[9]", "Params.sketch11_height")
pocket7 = body.newObject("PartDesign::Pocket", "Pocket006")
pocket7.Profile = sketch11
pocket7.setExpression("Length", "Params.pocket7_length")
pocket7.Reversed = True

doc.recompute()
